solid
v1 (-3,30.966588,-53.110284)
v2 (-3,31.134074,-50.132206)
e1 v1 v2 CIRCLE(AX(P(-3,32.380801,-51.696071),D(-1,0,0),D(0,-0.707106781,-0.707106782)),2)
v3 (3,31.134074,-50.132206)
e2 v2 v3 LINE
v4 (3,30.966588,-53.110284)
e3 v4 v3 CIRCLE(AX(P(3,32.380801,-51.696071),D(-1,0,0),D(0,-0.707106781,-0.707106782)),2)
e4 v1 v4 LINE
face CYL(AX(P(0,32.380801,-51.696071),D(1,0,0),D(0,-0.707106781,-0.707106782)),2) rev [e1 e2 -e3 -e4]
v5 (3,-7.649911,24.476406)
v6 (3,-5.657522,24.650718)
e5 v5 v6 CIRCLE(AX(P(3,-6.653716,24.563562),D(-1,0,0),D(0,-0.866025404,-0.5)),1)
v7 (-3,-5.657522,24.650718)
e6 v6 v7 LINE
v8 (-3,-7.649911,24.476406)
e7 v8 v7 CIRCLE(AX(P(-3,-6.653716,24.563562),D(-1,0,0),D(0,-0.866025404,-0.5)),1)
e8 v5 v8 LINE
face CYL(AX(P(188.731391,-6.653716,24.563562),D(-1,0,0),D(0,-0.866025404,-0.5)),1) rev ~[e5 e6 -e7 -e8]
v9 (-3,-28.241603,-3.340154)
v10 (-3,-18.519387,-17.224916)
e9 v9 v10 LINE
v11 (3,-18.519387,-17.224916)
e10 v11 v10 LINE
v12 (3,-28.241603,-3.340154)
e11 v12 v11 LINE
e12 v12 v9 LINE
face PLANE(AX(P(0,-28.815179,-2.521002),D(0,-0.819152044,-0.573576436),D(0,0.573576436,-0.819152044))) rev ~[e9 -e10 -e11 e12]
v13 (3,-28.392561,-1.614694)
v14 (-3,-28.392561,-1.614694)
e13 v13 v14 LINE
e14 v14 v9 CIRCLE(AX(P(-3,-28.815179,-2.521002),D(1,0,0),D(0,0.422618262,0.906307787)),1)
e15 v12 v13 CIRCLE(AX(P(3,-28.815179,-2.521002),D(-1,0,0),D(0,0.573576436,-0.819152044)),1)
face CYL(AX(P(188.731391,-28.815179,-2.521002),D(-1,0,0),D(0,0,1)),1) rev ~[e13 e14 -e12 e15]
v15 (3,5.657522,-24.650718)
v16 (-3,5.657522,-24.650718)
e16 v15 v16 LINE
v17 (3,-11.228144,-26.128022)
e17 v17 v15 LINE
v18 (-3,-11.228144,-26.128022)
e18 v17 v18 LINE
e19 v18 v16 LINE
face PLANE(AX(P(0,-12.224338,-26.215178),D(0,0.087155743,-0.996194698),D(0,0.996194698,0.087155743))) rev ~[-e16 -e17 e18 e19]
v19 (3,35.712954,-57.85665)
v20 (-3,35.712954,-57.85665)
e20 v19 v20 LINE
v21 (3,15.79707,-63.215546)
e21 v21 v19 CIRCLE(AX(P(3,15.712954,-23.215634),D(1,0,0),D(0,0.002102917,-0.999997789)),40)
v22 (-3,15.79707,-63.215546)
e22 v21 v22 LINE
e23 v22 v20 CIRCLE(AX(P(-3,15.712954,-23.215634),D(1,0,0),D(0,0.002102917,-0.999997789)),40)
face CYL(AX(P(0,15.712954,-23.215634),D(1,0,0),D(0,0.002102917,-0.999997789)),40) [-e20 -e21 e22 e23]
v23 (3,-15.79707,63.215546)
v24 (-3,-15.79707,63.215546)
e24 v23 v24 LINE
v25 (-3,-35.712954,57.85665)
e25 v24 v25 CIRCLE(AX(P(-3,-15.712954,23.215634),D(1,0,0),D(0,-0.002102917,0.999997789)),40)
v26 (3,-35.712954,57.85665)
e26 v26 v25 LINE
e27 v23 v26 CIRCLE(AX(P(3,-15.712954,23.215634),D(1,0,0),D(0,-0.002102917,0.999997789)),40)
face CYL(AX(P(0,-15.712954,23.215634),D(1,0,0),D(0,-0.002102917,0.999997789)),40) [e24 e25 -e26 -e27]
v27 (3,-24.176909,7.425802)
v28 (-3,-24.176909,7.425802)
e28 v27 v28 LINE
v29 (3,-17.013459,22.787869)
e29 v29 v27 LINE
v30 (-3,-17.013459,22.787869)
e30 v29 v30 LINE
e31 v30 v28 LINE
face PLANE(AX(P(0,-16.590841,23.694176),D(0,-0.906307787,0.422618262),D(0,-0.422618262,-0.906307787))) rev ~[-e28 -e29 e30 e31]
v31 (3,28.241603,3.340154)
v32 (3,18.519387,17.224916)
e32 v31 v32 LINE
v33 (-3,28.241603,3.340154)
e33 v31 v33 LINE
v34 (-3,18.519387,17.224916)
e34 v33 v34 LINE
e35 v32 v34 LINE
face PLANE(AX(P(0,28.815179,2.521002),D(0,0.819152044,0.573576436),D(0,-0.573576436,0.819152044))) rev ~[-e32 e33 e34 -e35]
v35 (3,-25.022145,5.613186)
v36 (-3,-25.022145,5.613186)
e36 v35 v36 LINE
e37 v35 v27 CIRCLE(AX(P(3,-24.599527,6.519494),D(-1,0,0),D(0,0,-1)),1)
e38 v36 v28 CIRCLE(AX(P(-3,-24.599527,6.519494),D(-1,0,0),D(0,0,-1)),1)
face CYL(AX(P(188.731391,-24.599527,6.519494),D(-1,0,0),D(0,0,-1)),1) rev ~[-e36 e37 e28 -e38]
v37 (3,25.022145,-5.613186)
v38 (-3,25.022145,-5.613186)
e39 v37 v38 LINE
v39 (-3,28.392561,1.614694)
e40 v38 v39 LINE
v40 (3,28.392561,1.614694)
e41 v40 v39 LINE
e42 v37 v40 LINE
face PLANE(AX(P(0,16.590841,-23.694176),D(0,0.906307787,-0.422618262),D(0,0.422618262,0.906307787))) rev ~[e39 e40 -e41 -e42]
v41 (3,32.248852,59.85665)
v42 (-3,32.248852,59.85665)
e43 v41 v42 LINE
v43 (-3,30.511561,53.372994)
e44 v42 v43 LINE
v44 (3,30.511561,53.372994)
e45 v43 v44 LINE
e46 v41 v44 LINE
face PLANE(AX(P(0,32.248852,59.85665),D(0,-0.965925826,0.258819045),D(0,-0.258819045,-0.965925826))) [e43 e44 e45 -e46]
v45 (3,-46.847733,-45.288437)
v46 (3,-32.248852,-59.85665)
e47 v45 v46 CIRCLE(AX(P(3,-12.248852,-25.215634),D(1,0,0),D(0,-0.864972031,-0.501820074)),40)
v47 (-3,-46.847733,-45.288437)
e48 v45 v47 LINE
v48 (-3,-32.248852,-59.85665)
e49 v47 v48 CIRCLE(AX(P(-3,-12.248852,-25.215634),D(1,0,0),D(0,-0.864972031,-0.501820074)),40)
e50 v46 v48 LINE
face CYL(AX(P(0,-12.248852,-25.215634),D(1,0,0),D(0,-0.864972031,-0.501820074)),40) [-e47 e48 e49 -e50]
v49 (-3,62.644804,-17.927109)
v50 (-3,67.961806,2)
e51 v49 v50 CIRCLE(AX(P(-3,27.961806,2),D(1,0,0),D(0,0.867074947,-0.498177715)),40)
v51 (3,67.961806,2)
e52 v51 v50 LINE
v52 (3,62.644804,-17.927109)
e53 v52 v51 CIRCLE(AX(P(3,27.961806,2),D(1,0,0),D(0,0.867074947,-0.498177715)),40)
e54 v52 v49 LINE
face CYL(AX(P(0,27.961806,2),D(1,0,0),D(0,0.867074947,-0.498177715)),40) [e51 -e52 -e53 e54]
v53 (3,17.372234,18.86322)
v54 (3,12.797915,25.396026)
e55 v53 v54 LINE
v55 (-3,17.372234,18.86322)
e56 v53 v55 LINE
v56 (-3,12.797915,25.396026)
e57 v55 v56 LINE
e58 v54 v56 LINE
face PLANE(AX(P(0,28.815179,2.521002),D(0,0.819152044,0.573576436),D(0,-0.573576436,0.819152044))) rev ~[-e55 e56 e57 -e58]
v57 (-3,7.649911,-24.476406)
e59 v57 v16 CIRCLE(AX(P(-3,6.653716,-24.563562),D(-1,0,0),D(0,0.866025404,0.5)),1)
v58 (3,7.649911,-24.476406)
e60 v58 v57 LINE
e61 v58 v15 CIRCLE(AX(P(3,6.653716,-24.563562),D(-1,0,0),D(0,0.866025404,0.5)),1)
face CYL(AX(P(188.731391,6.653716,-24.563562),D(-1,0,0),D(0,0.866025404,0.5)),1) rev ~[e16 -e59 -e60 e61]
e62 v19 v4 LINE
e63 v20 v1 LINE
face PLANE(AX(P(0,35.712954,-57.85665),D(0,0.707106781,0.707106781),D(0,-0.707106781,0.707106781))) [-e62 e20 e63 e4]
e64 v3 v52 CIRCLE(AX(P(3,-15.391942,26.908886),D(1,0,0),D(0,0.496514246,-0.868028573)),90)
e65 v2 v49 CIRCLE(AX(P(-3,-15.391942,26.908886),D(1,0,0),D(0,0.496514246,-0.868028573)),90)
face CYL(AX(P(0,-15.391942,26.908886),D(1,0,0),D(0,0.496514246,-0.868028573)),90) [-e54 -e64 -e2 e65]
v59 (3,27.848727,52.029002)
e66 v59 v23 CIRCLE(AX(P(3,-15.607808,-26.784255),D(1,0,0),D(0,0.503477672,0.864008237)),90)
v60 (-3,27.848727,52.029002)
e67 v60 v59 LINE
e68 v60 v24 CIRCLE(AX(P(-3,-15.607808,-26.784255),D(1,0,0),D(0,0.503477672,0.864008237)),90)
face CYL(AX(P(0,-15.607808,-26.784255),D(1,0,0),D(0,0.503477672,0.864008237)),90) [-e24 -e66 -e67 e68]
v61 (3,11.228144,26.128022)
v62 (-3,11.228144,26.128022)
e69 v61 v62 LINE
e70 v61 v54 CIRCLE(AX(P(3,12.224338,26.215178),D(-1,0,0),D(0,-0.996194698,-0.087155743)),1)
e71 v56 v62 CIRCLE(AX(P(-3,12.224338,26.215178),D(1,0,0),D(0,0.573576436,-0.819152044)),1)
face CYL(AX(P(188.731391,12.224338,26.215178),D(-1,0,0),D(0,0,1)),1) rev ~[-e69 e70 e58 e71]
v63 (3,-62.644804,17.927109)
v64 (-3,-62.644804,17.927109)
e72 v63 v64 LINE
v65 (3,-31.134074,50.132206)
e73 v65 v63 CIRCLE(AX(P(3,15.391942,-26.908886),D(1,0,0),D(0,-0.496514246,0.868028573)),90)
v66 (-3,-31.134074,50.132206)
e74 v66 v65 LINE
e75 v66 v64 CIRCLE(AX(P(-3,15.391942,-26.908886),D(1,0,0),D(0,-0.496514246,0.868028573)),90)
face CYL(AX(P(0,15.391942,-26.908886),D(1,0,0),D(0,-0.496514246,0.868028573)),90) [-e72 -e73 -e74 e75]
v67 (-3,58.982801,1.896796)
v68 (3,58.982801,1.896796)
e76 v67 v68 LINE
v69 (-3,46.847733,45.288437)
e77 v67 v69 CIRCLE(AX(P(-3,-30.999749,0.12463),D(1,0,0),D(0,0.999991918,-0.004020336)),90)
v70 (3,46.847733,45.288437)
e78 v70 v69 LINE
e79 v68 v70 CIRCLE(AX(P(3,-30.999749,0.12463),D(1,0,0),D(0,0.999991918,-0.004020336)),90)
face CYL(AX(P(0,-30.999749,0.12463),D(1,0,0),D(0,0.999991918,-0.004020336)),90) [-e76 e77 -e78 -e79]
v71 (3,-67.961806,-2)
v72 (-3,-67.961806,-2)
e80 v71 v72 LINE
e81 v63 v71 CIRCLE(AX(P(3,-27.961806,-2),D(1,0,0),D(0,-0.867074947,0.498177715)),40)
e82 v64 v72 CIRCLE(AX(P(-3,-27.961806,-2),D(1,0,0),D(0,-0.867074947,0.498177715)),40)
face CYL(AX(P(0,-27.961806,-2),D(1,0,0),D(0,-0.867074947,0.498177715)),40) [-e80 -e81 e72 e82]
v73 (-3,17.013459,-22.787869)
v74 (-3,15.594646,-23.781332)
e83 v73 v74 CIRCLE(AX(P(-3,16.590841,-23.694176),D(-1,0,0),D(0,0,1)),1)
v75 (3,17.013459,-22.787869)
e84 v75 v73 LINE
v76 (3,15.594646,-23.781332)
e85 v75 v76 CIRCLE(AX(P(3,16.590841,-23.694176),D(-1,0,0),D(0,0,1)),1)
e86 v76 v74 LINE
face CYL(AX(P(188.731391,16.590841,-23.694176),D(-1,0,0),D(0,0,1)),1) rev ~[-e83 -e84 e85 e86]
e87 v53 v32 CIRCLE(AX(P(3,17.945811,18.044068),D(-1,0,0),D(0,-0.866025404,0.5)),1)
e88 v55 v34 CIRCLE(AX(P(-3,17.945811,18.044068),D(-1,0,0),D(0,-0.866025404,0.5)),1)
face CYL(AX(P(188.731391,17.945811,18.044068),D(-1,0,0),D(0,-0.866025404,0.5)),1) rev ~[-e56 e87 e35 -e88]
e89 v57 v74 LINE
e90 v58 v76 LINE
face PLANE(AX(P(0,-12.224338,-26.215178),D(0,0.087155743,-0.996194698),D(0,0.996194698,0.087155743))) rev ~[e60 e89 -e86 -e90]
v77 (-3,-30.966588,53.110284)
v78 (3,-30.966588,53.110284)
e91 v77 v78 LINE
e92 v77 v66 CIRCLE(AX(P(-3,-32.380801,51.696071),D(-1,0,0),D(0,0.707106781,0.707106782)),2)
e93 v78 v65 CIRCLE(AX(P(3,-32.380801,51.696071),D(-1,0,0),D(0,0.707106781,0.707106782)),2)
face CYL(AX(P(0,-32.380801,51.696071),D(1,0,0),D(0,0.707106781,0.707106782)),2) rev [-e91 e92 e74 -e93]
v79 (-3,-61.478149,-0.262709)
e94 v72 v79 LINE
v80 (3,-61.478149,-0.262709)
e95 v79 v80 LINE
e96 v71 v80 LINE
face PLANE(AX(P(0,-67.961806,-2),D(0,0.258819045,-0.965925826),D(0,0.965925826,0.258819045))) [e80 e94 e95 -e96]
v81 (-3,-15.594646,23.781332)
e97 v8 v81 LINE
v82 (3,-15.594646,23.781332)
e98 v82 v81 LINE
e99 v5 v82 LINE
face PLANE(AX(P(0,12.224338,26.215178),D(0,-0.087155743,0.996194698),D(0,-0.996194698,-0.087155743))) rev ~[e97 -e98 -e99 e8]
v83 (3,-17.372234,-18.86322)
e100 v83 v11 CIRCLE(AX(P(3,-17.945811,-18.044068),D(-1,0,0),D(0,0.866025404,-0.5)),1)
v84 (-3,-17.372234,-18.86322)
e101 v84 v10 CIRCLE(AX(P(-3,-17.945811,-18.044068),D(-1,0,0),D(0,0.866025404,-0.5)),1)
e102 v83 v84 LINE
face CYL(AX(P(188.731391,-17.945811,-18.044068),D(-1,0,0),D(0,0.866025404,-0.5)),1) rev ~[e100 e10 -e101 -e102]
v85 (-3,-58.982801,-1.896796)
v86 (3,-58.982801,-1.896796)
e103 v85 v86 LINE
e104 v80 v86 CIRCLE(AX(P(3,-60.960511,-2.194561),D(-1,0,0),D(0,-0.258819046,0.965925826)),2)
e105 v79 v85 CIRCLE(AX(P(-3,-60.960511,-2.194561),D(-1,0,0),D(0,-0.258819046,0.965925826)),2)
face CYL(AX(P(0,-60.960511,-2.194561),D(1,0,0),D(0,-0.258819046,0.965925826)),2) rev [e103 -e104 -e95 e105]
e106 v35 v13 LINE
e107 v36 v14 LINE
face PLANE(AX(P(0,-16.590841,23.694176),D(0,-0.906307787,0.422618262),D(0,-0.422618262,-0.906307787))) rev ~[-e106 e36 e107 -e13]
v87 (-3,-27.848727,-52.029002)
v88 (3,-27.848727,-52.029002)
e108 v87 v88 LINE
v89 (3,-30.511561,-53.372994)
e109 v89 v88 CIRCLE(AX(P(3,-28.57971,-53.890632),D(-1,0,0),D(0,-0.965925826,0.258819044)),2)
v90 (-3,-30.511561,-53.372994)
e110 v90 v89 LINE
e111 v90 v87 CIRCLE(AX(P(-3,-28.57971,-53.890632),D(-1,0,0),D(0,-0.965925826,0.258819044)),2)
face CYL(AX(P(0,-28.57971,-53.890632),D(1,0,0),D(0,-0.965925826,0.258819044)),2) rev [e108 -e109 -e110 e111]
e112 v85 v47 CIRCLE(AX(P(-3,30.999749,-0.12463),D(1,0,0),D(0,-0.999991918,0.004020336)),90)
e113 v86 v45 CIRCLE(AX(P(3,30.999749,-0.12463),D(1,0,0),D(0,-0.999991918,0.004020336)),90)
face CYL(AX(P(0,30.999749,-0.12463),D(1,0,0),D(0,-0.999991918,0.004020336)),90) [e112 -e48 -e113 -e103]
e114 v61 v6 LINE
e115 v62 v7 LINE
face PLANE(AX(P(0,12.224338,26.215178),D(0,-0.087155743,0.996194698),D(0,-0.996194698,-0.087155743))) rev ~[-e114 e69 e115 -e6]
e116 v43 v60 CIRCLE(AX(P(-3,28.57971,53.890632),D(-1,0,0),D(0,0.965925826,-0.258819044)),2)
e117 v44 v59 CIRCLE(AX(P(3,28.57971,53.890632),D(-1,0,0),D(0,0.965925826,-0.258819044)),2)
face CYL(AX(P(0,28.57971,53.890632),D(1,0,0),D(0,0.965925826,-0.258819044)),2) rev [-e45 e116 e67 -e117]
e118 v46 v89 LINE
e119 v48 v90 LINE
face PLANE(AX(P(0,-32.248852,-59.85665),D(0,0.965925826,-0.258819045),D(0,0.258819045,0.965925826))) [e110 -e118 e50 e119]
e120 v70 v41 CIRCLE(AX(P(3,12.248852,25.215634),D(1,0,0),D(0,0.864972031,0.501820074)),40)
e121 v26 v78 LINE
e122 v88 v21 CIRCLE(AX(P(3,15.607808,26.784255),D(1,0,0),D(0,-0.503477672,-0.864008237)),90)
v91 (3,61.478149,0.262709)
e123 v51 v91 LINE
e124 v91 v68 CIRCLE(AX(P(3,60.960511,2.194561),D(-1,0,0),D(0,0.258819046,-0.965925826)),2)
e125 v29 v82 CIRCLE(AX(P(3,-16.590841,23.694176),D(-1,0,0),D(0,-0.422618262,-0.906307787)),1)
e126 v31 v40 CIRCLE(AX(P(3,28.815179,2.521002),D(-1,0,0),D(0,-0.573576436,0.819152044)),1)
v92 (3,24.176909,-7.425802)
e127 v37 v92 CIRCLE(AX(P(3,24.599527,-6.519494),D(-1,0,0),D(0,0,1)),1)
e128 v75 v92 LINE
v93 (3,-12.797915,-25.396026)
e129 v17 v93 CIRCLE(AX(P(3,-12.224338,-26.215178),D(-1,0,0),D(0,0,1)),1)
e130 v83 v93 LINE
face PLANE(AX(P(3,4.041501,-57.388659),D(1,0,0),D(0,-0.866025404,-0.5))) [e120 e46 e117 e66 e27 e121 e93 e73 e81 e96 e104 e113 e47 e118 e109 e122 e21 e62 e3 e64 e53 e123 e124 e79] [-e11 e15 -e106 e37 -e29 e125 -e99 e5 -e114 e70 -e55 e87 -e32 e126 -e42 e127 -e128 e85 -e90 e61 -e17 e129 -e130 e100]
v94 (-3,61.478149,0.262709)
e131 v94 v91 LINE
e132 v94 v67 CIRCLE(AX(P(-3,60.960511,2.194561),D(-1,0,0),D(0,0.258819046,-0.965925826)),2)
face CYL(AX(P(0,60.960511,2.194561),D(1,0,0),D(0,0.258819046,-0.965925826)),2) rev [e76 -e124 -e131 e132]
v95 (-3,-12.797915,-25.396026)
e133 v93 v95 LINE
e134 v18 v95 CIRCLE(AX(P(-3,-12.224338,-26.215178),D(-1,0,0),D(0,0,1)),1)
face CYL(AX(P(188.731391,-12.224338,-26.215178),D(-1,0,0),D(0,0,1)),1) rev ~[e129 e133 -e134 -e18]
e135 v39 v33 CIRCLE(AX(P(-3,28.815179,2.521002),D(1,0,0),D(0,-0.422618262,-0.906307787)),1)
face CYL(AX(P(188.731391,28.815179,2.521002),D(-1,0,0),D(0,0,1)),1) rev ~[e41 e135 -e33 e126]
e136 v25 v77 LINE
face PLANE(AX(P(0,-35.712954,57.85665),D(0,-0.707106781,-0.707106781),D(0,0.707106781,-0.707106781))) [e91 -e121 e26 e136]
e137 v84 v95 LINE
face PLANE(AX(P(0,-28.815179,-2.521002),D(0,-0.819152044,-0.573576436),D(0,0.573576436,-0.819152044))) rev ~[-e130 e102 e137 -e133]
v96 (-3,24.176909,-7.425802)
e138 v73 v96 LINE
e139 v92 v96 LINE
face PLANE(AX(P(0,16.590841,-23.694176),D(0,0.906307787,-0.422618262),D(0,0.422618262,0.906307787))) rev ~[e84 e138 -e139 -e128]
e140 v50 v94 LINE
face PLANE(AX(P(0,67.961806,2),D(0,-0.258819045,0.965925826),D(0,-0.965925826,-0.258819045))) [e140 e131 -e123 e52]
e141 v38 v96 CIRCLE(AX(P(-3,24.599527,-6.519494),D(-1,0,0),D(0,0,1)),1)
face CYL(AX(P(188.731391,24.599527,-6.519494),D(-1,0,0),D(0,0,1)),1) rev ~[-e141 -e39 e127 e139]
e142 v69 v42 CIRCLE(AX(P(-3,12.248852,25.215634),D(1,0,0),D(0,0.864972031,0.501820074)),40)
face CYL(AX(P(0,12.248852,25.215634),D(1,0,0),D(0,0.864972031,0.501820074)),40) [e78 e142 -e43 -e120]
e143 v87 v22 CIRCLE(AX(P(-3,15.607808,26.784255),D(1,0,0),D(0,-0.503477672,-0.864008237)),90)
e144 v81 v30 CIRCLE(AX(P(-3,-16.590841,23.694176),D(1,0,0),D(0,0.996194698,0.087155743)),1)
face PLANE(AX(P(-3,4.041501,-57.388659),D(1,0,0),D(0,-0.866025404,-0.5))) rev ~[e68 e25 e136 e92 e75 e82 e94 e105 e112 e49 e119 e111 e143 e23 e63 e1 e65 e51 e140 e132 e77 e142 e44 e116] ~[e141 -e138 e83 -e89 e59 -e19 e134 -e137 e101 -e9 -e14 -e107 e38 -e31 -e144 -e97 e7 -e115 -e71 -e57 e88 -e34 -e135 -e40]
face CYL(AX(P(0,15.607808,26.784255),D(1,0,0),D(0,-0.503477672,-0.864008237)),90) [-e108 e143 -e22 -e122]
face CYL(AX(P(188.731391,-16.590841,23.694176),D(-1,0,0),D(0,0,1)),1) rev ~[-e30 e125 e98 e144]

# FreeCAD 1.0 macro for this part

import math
import FreeCAD as App
import Part
import Sketcher

V = App.Vector
Q = App.Units.Quantity

doc = App.newDocument("Part")
body = doc.addObject("PartDesign::Body", "Body")

sketch1 = doc.addObject("Sketcher::SketchObject", "Sketch")
body.addObject(sketch1)
sketch1.AttachmentSupport = (doc.YZ_Plane, [""])
sketch1.MapMode = "FlatFace"
sketch1.addGeometry(Part.Circle(V(0, 0, 0), V(0, 0, 1), 59), False)
sketch1.addGeometry(Part.LineSegment(V(28.815179, 2.521002, 0), V(16.590841, -23.694176, 0)), False)
sketch1.addGeometry(Part.LineSegment(V(16.590841, -23.694176, 0), V(-12.224338, -26.215178, 0)), False)
sketch1.addGeometry(Part.LineSegment(V(-12.224338, -26.215178, 0), V(-28.815179, -2.521002, 0)), False)
sketch1.addGeometry(Part.LineSegment(V(-28.815179, -2.521002, 0), V(-16.590841, 23.694176, 0)), False)
sketch1.addGeometry(Part.LineSegment(V(-16.590841, 23.694176, 0), V(12.224338, 26.215178, 0)), False)
sketch1.addGeometry(Part.LineSegment(V(12.224338, 26.215178, 0), V(28.815179, 2.521002, 0)), False)
sketch1.addConstraint(Sketcher.Constraint("Coincident", 1, 2, 2, 1))
sketch1.addConstraint(Sketcher.Constraint("Coincident", 2, 2, 3, 1))
sketch1.addConstraint(Sketcher.Constraint("Coincident", 3, 2, 4, 1))
sketch1.addConstraint(Sketcher.Constraint("Coincident", 4, 2, 5, 1))
sketch1.addConstraint(Sketcher.Constraint("Coincident", 5, 2, 6, 1))
sketch1.addConstraint(Sketcher.Constraint("Coincident", 6, 2, 1, 1))
sketch1.addConstraint(Sketcher.Constraint("Coincident", 0, 3, -1, 1))
sketch1.addConstraint(Sketcher.Constraint("Symmetric", 1, 2, 4, 2, -1, 1))
sketch1.addConstraint(Sketcher.Constraint("Symmetric", 2, 2, 5, 2, -1, 1))
sketch1.addConstraint(Sketcher.Constraint("Symmetric", 3, 2, 6, 2, -1, 1))
sketch1.addConstraint(Sketcher.Constraint("Equal", 1, 2))
sketch1.addConstraint(Sketcher.Constraint("Equal", 2, 3))
sketch1.addConstraint(Sketcher.Constraint("Diameter", 0, Q("118 mm")))
sketch1.addConstraint(Sketcher.Constraint("Angle", 1, Q("-115 deg")))
sketch1.addConstraint(Sketcher.Constraint("Angle", 2, Q("-175 deg")))
sketch1.addConstraint(Sketcher.Constraint("Angle", 3, Q("125 deg")))
sketch1.addConstraint(Sketcher.Constraint("DistanceY", 3, 2, -1, 1, Q("2.521002 mm")))
pad1 = doc.addObject("PartDesign::Pad", "Pad")
body.addObject(pad1)
pad1.Profile = sketch1
pad1.Length = 6
pad1.Midplane = True

sketch2 = doc.addObject("Sketcher::SketchObject", "Sketch001")
body.addObject(sketch2)
sketch2.AttachmentSupport = (doc.YZ_Plane, [""])
sketch2.MapMode = "FlatFace"
sketch2.addGeometry(Part.LineSegment(V(67.961806, 2, 0), V(61.478149, 0.262709, 0)), False)
sketch2.addGeometry(Part.ArcOfCircle(Part.Circle(V(60.960511, 2.194561, 0), V(0, 0, 1), 2), math.radians(-177.938259), math.radians(-75)), False)
sketch2.addGeometry(Part.ArcOfCircle(Part.Circle(V(0, 0, 0), V(0, 0, 1), 59), math.radians(-60.230349), math.radians(2.061741)), False)
sketch2.addGeometry(Part.ArcOfCircle(Part.Circle(V(-15.391942, 26.908886, 0), V(0, 0, 1), 90), math.radians(-60.230349), math.radians(-29.879512)), False)
sketch2.addGeometry(Part.ArcOfCircle(Part.Circle(V(27.961806, 2, 0), V(0, 0, 1), 40), math.radians(-29.879512), math.radians(0)), False)
sketch2.addConstraint(Sketcher.Constraint("Tangent", 0, 2, 1, 2))
sketch2.addConstraint(Sketcher.Constraint("Tangent", 1, 1, 2, 2))
sketch2.addConstraint(Sketcher.Constraint("Tangent", 2, 1, 3, 1))
sketch2.addConstraint(Sketcher.Constraint("Tangent", 3, 2, 4, 1))
sketch2.addConstraint(Sketcher.Constraint("Coincident", 4, 2, 0, 1))
sketch2.addConstraint(Sketcher.Constraint("Coincident", 2, 3, -1, 1))
sketch2.addConstraint(Sketcher.Constraint("Radius", 1, Q("2 mm")))
sketch2.addConstraint(Sketcher.Constraint("Radius", 2, Q("59 mm")))
sketch2.addConstraint(Sketcher.Constraint("Radius", 3, Q("90 mm")))
sketch2.addConstraint(Sketcher.Constraint("Radius", 4, Q("40 mm")))
sketch2.addConstraint(Sketcher.Constraint("Angle", 0, Q("-165 deg")))
sketch2.addConstraint(Sketcher.Constraint("DistanceY", -1, 1, 4, 3, Q("2 mm")))
sketch2.addConstraint(Sketcher.Constraint("DistanceY", -1, 1, 4, 2, Q("2 mm")))
sketch2.addConstraint(Sketcher.Constraint("DistanceX", 4, 3, 1, 1, Q("31 mm")))
pad2 = doc.addObject("PartDesign::Pad", "Pad001")
body.addObject(pad2)
pad2.Profile = sketch2
pad2.Length = 6
pad2.Midplane = True
doc.recompute()

polarpattern = doc.addObject("PartDesign::PolarPattern", "PolarPattern")
body.addObject(polarpattern)
polarpattern.Originals = [pad2]
polarpattern.Axis = (doc.X_Axis, [""])
polarpattern.Angle = 360
polarpattern.Occurrences = 6
body.Tip = polarpattern

sketch3 = doc.addObject("Sketcher::SketchObject", "Sketch002")
body.addObject(sketch3)
sketch3.AttachmentSupport = (doc.YZ_Plane, [""])
sketch3.MapMode = "FlatFace"
sketch3.AttachmentOffset = App.Placement(V(0, 0, 3), App.Rotation())
sketch3.addGeometry(Part.Circle(V(28.815179, 2.521002, 0), V(0, 0, 1), 1), False)
sketch3.addGeometry(Part.Circle(V(16.590841, -23.694176, 0), V(0, 0, 1), 1), False)
sketch3.addGeometry(Part.Circle(V(-12.224338, -26.215178, 0), V(0, 0, 1), 1), False)
sketch3.addGeometry(Part.Circle(V(-28.815179, -2.521002, 0), V(0, 0, 1), 1), False)
sketch3.addGeometry(Part.Circle(V(-16.590841, 23.694176, 0), V(0, 0, 1), 1), False)
sketch3.addGeometry(Part.Circle(V(12.224338, 26.215178, 0), V(0, 0, 1), 1), False)
sketch3.addConstraint(Sketcher.Constraint("Equal", 0, 1))
sketch3.addConstraint(Sketcher.Constraint("Equal", 1, 2))
sketch3.addConstraint(Sketcher.Constraint("Equal", 2, 3))
sketch3.addConstraint(Sketcher.Constraint("Equal", 3, 4))
sketch3.addConstraint(Sketcher.Constraint("Equal", 4, 5))
sketch3.addConstraint(Sketcher.Constraint("Symmetric", 0, 3, 3, 3, -1, 1))
sketch3.addConstraint(Sketcher.Constraint("Symmetric", 1, 3, 4, 3, -1, 1))
sketch3.addConstraint(Sketcher.Constraint("Symmetric", 2, 3, 5, 3, -1, 1))
sketch3.addConstraint(Sketcher.Constraint("Diameter", 0, Q("2 mm")))
sketch3.addConstraint(Sketcher.Constraint("DistanceY", -1, 1, 0, 3, Q("2.521002 mm")))
sketch3.addConstraint(Sketcher.Constraint("DistanceY", 2, 3, 1, 3, Q("2.521002 mm")))
sketch3.addConstraint(Sketcher.Constraint("DistanceX", -1, 1, 0, 3, Q("28.815179 mm")))
sketch3.addConstraint(Sketcher.Constraint("DistanceX", -1, 1, 1, 3, Q("16.590841 mm")))
sketch3.addConstraint(Sketcher.Constraint("DistanceX", 2, 3, -1, 1, Q("12.224338 mm")))
sketch3.addConstraint(Sketcher.Constraint("DistanceY", 2, 3, 0, 3, Q("28.736179 mm")))
doc.recompute()
hole = doc.addObject("PartDesign::Hole", "Hole")
body.addObject(hole)
hole.Profile = sketch3
hole.ThreadType = "None"
hole.Diameter = 2
hole.DepthType = "ThroughAll"

sketch4 = doc.addObject("Sketcher::SketchObject", "Sketch003")
body.addObject(sketch4)
sketch4.AttachmentSupport = (doc.YZ_Plane, [""])
sketch4.MapMode = "FlatFace"
sketch4.AttachmentOffset = App.Placement(V(0, 0, 3), App.Rotation())
sketch4.addGeometry(Part.Circle(V(24.599527, -6.519494, 0), V(0, 0, 1), 1), False)
sketch4.addConstraint(Sketcher.Constraint("Diameter", 0, Q("2 mm")))
sketch4.addConstraint(Sketcher.Constraint("DistanceX", -1, 1, 0, 3, Q("24.599527 mm")))
sketch4.addConstraint(Sketcher.Constraint("DistanceY", 0, 3, -1, 1, Q("6.519494 mm")))
doc.recompute()
hole2 = doc.addObject("PartDesign::Hole", "Hole001")
body.addObject(hole2)
hole2.Profile = sketch4
hole2.ThreadType = "None"
hole2.Diameter = 2
hole2.DepthType = "ThroughAll"
doc.recompute()

polarpattern2 = doc.addObject("PartDesign::PolarPattern", "PolarPattern001")
body.addObject(polarpattern2)
polarpattern2.Originals = [hole2]
polarpattern2.Axis = (doc.X_Axis, [""])
polarpattern2.Angle = 360
polarpattern2.Occurrences = 6
body.Tip = polarpattern2

doc.recompute()
